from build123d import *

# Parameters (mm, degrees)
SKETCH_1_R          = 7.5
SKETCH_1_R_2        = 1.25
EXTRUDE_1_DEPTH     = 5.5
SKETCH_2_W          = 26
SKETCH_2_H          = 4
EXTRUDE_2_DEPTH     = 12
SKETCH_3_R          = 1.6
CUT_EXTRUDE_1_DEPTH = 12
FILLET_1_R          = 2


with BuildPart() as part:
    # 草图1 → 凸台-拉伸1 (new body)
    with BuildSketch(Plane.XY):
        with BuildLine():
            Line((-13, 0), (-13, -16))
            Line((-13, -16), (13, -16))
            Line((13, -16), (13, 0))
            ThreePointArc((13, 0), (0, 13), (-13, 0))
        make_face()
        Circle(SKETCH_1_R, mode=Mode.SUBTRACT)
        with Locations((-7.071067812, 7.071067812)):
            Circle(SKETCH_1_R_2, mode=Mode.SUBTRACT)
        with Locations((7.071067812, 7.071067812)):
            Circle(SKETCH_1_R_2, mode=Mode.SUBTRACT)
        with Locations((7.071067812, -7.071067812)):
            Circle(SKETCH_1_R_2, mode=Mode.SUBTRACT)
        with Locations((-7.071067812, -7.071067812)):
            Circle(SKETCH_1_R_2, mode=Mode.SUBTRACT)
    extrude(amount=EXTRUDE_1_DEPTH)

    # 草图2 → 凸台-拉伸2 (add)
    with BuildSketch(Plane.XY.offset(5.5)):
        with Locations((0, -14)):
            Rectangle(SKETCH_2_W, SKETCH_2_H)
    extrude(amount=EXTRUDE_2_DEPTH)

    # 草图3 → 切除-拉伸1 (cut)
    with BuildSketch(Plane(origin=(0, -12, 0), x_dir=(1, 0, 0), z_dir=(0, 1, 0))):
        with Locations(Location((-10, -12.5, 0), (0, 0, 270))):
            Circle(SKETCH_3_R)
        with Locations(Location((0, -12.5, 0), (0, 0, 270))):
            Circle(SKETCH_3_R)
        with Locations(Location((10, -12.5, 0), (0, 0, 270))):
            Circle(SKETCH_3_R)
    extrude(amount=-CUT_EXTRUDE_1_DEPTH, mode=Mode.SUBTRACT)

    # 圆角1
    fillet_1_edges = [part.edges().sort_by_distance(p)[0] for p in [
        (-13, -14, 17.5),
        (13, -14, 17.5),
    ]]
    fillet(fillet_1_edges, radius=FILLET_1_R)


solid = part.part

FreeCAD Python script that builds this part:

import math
import FreeCAD as App
import Part
import Sketcher
from FreeCAD import Vector


def edges_at(feature, points):
    """Names of the edges that pass closest to the given points."""
    edges = feature.Shape.Edges
    near = lambda p: min(range(len(edges)), key=lambda i: edges[i].distToShape(Part.Vertex(*p))[0])
    return sorted({f"Edge{near(p) + 1}" for p in points})


def add_polygon(sketch, points):
    """Adds a closed chain of lines whose ends are joined by coincident constraints."""
    first, n = sketch.GeometryCount, len(points)
    for a, b in zip(points, points[1:] + points[:1]):
        sketch.addGeometry(Part.LineSegment(App.Vector(*a, 0), App.Vector(*b, 0)), False)
    for i in range(n):
        sketch.addConstraint(Sketcher.Constraint("Coincident", first + i, 2, first + (i + 1) % n, 1))

doc = App.newDocument("Part")
body = doc.addObject("PartDesign::Body", "Body")

# Sketch on XY plane
sketch1 = body.newObject("Sketcher::SketchObject", "Sketch")
sketch1.AttachmentSupport = (doc.getObject("XY_Plane"), [""])
sketch1.MapMode = "FlatFace"
sketch1.addGeometry([
    Part.LineSegment(Vector(-13, 0, 0), Vector(-13, -16, 0)),  # 0
    Part.LineSegment(Vector(-13, -16, 0), Vector(13, -16, 0)),  # 1
    Part.LineSegment(Vector(13, -16, 0), Vector(13, 0, 0)),  # 2
    Part.ArcOfCircle(Part.Circle(Vector(0, 0, 0), Vector(0, 0, 1), 13), math.radians(0), math.radians(180)),  # 3
    Part.Circle(Vector(-7.1, -7.1, 0), Vector(0, 0, 1), 1.2),  # 4
    Part.Circle(Vector(7.1, -7.1, 0), Vector(0, 0, 1), 1.2),  # 5
    Part.Circle(Vector(-7.1, 7.1, 0), Vector(0, 0, 1), 1.2),  # 6
    Part.Circle(Vector(0, 0, 0), Vector(0, 0, 1), 7.5),  # 7
    Part.Circle(Vector(7.1, 7.1, 0), Vector(0, 0, 1), 1.2),  # 8
], False)
sketch1.addConstraint([
    Sketcher.Constraint("Coincident", 0, 2, 1, 1),
    Sketcher.Constraint("Coincident", 1, 2, 2, 1),
    Sketcher.Constraint("Tangent", 2, 2, 3, 1),
    Sketcher.Constraint("Tangent", 3, 2, 0, 1),
    Sketcher.Constraint("Vertical", 0),
    Sketcher.Constraint("Horizontal", 1),
    Sketcher.Constraint("Vertical", 2),
    Sketcher.Constraint("Coincident", 3, 3, -1, 1),
    Sketcher.Constraint("Coincident", 7, 3, -1, 1),
    Sketcher.Constraint("Equal", 4, 5),
    Sketcher.Constraint("Equal", 5, 6),
    Sketcher.Constraint("Equal", 6, 8),
    Sketcher.Constraint("Symmetric", 5, 3, 6, 3, -1, 1),
    Sketcher.Constraint("Symmetric", 4, 3, 8, 3, -1, 1),
    Sketcher.Constraint("Symmetric", 4, 3, 5, 3, -2),
    Sketcher.Constraint("Diameter", 7, 15.0),
    Sketcher.Constraint("Radius", 3, 13.0),
    Sketcher.Constraint("Diameter", 4, 2.5),
    Sketcher.Constraint("DistanceY", 0, 2, 0, 1, 16.0),
    Sketcher.Constraint("DistanceX", 4, 3, -1, 1, 7.071068),
    Sketcher.Constraint("DistanceY", 4, 3, -1, 1, 7.071068),
])
pad1 = body.newObject("PartDesign::Pad", "Pad")
pad1.Profile = sketch1
pad1.Length = 5.5

# Sketch on XY plane
sketch2 = body.newObject("Sketcher::SketchObject", "Sketch001")
sketch2.AttachmentSupport = (doc.getObject("XY_Plane"), [""])
sketch2.MapMode = "FlatFace"
sketch2.AttachmentOffset = App.Placement(Vector(0, 0, 5.5), App.Rotation())
add_polygon(sketch2, [(-13, -12), (-13, -16), (13, -16), (13, -12)])  # lines 0-3
sketch2.addConstraint([
    Sketcher.Constraint("Vertical", 0),
    Sketcher.Constraint("Horizontal", 1),
    Sketcher.Constraint("Vertical", 2),
    Sketcher.Constraint("Horizontal", 3),
    Sketcher.Constraint("DistanceX", 1, 1, 1, 2, 26.0),
    Sketcher.Constraint("DistanceY", 0, 2, 0, 1, 4.0),
    Sketcher.Constraint("DistanceX", 0, 2, -1, 1, 13.0),
    Sketcher.Constraint("DistanceY", 0, 2, -1, 1, 16.0),
])
pad2 = body.newObject("PartDesign::Pad", "Pad001")
pad2.Profile = sketch2
pad2.Length = 12

# Sketch on XZ plane
sketch3 = body.newObject("Sketcher::SketchObject", "Sketch002")
sketch3.AttachmentSupport = (doc.getObject("XZ_Plane"), [""])
sketch3.MapMode = "FlatFace"
sketch3.AttachmentOffset = App.Placement(Vector(0, 0, 12), App.Rotation())
sketch3.addGeometry([
    Part.Circle(Vector(-10, 12.5, 0), Vector(0, 0, 1), 1.6),
    Part.Circle(Vector(0, 12.5, 0), Vector(0, 0, 1), 1.6),
    Part.Circle(Vector(10, 12.5, 0), Vector(0, 0, 1), 1.6),
], False)
sketch3.addConstraint([
    Sketcher.Constraint("Equal", 0, 1),
    Sketcher.Constraint("Equal", 1, 2),
    Sketcher.Constraint("Symmetric", 0, 3, 2, 3, -2),
    Sketcher.Constraint("PointOnObject", 1, 3, -2),
    Sketcher.Constraint("Horizontal", 0, 3, 1, 3),
    Sketcher.Constraint("Diameter", 0, 3.2),
    Sketcher.Constraint("DistanceX", 0, 3, -1, 1, 10.0),
    Sketcher.Constraint("DistanceY", -1, 1, 0, 3, 12.5),
])
pocket1 = body.newObject("PartDesign::Pocket", "Pocket")
pocket1.Profile = sketch3
pocket1.Length = 12
pocket1.Reversed = True
doc.recompute()

fillet = body.newObject("PartDesign::Fillet", "Fillet")
fillet.Base = (pocket1, edges_at(pocket1, [(-13, -14, 17.5), (13, -14, 17.5)]))
fillet.Radius = 2

doc.recompute()
